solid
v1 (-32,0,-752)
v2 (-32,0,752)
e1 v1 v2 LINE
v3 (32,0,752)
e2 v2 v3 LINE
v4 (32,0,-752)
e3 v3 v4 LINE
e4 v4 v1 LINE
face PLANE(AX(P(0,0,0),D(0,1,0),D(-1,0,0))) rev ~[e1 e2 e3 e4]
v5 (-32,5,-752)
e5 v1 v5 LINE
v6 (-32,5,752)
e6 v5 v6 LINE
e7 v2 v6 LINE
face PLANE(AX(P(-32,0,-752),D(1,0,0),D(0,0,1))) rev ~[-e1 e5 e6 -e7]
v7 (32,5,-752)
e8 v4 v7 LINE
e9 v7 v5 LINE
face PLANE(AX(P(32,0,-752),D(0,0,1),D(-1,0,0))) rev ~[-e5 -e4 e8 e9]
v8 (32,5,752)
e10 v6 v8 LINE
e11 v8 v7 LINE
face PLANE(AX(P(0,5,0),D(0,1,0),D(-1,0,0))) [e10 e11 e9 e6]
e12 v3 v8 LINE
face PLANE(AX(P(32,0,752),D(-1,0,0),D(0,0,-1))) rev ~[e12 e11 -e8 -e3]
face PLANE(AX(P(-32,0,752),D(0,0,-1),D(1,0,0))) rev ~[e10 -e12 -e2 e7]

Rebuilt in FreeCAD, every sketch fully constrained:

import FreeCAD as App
import Part
import Sketcher

V = App.Vector

doc = App.newDocument("Part")
body = doc.addObject("PartDesign::Body", "Body")

# Sketch on XZ plane
sketch1 = doc.addObject("Sketcher::SketchObject", "Sketch")
body.addObject(sketch1)
sketch1.AttachmentSupport = (doc.XZ_Plane, [""])
sketch1.MapMode = "FlatFace"
sketch1.addGeometry([
    Part.LineSegment(V(-32, -752, 0), V(-32, 752, 0)),
    Part.LineSegment(V(-32, 752, 0), V(32, 752, 0)),
    Part.LineSegment(V(32, 752, 0), V(32, -752, 0)),
    Part.LineSegment(V(32, -752, 0), V(-32, -752, 0)),
], False)
sketch1.addConstraint([
    Sketcher.Constraint("Coincident", 0, 2, 1, 1),
    Sketcher.Constraint("Coincident", 1, 2, 2, 1),
    Sketcher.Constraint("Coincident", 2, 2, 3, 1),
    Sketcher.Constraint("Coincident", 3, 2, 0, 1),
    Sketcher.Constraint("Vertical", 0),
    Sketcher.Constraint("Horizontal", 1),
    Sketcher.Constraint("Vertical", 2),
    Sketcher.Constraint("Horizontal", 3),
    Sketcher.Constraint("Symmetric", 0, 2, 2, 2, -1, 1),
    Sketcher.Constraint("DistanceX", 1, 1, 1, 2, 64.0),
    Sketcher.Constraint("DistanceY", 0, 1, 0, 2, 1504.0),
])
pad1 = doc.addObject("PartDesign::Pad", "Pad")
body.addObject(pad1)
pad1.Profile = sketch1
pad1.Length = 5
pad1.Reversed = True

doc.recompute()
